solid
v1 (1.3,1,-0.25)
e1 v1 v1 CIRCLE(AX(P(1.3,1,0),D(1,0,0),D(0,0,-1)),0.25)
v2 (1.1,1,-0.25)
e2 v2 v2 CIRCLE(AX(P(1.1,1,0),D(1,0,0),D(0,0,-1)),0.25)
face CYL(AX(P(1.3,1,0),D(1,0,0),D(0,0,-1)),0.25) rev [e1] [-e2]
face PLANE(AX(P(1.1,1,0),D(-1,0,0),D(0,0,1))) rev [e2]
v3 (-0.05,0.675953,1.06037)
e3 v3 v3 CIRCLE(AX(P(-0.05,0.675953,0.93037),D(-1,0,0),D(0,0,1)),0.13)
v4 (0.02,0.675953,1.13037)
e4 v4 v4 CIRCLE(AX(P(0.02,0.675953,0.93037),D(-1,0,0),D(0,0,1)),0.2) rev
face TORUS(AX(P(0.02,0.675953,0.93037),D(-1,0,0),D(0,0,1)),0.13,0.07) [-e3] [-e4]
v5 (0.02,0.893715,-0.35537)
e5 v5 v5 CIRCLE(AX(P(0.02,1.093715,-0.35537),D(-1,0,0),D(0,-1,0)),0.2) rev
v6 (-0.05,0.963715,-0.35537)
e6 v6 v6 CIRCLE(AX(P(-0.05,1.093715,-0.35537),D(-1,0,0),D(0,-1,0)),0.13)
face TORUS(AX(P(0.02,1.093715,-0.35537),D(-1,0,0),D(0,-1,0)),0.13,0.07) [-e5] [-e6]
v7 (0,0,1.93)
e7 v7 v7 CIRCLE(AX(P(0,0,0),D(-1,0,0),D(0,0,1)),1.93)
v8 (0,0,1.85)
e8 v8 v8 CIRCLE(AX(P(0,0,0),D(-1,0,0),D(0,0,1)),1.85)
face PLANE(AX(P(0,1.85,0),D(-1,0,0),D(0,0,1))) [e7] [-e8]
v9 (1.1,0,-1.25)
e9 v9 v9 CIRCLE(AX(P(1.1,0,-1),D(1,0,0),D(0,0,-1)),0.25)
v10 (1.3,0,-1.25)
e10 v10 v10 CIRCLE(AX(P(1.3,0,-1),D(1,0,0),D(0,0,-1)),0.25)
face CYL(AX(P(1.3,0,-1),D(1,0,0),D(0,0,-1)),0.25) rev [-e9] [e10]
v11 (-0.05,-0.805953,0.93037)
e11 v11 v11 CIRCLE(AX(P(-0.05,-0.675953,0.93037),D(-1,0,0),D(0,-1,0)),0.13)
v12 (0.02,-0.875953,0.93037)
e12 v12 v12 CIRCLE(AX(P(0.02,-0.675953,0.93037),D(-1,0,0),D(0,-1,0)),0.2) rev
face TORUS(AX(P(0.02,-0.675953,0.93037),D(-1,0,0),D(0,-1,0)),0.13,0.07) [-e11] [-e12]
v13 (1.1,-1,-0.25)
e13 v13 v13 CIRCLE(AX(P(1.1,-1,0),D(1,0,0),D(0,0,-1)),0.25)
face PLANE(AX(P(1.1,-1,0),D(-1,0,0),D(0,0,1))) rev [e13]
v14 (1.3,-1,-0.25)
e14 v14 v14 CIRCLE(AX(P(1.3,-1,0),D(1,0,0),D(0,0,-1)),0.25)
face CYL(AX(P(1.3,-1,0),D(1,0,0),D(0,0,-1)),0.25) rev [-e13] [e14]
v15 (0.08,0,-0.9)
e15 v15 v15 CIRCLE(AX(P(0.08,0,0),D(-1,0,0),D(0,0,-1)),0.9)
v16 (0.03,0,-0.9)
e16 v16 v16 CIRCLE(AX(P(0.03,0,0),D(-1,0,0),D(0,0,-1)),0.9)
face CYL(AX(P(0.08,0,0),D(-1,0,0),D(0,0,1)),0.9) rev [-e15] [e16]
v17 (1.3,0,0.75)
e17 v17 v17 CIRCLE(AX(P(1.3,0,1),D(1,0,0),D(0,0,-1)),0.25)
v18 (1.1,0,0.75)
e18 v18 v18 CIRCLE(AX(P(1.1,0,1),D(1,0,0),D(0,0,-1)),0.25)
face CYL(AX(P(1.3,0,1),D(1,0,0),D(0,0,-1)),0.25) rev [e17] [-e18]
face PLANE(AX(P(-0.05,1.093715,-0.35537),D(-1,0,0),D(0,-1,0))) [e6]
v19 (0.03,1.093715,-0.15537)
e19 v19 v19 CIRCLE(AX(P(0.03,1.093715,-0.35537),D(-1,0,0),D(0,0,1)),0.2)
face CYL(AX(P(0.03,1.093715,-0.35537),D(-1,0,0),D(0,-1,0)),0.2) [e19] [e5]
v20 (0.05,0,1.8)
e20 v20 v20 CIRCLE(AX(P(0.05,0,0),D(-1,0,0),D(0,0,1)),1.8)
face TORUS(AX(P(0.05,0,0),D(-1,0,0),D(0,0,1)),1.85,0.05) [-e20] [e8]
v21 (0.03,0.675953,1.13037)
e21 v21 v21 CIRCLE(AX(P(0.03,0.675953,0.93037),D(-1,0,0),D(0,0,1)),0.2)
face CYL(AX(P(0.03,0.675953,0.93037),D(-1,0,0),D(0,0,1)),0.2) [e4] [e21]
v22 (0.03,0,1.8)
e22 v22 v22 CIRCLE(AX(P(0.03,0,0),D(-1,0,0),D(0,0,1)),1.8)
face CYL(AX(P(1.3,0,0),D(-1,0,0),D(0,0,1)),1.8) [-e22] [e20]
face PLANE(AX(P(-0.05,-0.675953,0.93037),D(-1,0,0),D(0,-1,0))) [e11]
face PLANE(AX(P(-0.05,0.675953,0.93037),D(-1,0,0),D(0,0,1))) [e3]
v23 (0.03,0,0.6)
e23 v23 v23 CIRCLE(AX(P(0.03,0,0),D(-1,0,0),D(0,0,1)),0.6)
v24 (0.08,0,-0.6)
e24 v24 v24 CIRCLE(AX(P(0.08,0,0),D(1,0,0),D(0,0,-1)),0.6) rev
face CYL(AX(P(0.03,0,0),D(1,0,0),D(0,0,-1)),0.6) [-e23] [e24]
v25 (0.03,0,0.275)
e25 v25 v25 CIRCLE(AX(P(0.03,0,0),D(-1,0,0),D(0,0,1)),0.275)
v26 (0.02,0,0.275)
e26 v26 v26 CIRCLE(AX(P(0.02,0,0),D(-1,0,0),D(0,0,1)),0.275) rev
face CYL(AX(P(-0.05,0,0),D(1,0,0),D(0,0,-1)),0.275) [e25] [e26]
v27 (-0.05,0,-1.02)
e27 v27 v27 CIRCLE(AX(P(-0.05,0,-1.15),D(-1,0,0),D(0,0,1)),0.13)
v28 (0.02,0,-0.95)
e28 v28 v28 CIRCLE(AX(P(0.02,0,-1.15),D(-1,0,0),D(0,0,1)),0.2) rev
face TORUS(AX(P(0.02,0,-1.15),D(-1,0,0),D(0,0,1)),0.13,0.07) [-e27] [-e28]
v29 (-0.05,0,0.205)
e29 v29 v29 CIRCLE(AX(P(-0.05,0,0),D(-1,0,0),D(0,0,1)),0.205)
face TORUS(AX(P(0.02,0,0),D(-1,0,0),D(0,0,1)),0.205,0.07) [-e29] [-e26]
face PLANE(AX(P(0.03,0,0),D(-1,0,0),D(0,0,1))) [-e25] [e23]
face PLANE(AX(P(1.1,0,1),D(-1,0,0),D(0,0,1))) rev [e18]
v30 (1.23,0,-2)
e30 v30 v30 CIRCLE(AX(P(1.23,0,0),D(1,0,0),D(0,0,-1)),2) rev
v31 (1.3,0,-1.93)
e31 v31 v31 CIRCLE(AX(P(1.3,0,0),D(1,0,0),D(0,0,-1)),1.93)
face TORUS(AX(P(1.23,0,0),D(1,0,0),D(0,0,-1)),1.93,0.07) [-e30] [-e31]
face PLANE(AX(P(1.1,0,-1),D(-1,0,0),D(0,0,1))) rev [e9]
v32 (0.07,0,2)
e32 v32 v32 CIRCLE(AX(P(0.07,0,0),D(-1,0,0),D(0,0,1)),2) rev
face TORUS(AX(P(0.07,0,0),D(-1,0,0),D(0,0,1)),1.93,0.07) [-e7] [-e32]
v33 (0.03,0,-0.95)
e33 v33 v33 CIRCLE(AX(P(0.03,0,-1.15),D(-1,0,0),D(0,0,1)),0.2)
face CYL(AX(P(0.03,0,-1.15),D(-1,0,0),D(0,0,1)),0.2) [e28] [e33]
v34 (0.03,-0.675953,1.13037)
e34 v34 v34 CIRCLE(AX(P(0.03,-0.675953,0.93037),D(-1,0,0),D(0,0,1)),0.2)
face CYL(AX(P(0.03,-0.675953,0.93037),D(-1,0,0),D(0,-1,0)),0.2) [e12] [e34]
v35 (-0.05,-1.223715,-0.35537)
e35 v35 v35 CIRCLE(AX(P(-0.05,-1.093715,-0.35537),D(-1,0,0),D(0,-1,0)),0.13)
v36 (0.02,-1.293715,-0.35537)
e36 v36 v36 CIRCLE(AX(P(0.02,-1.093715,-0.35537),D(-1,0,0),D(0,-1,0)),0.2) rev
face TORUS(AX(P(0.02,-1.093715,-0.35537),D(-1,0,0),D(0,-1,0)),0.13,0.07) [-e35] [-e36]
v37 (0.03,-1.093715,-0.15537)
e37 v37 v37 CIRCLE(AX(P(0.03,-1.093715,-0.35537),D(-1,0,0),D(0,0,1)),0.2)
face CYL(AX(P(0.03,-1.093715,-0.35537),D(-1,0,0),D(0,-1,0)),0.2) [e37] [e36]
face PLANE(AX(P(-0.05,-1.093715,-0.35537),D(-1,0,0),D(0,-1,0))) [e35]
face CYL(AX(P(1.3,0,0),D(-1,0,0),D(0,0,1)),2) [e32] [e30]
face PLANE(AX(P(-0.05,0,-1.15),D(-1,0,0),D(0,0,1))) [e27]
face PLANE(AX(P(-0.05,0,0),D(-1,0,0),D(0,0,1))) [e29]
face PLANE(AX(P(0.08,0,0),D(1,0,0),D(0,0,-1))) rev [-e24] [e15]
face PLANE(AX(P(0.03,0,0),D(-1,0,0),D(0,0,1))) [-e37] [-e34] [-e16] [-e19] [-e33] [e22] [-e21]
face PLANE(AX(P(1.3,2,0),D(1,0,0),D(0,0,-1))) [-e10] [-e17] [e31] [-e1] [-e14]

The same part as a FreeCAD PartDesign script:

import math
import FreeCAD as App
import Part
import Sketcher
Q = App.Units.Quantity


def edges_at(feature, points):
    """Names of the edges that pass closest to the given points."""
    edges = feature.Shape.Edges
    near = lambda p: min(range(len(edges)), key=lambda i: edges[i].distToShape(Part.Vertex(*p))[0])
    return sorted({f"Edge{near(p) + 1}" for p in points})


def add_polygon(sketch, points):
    """Adds a closed chain of lines whose ends are joined by coincident constraints."""
    first, n = sketch.GeometryCount, len(points)
    for a, b in zip(points, points[1:] + points[:1]):
        sketch.addGeometry(Part.LineSegment(App.Vector(*a, 0), App.Vector(*b, 0)), False)
    for i in range(n):
        sketch.addConstraint(Sketcher.Constraint("Coincident", first + i, 2, first + (i + 1) % n, 1))

doc = App.newDocument("Part")
body = doc.addObject("PartDesign::Body", "Body")

# Sketch on XY plane
sketch1 = body.newObject("Sketcher::SketchObject", "Sketch")
sketch1.AttachmentSupport = (doc.getObject("XY_Plane"), [""])
sketch1.MapMode = "FlatFace"
sketch1.addGeometry([
    Part.LineSegment(App.Vector(1.3, 2, 0), App.Vector(1.3, 0, 0)),  # 0
    Part.LineSegment(App.Vector(1.3, 0, 0), App.Vector(0.03, 0, 0)),  # 1
    Part.LineSegment(App.Vector(0.03, 0, 0), App.Vector(0.03, 1.8, 0)),  # 2
    Part.LineSegment(App.Vector(0.03, 1.8, 0), App.Vector(0.05, 1.8, 0)),  # 3
    Part.ArcOfCircle(Part.Circle(App.Vector(0.05, 1.85, 0), App.Vector(0, 0, 1), 0.05), math.radians(180), math.radians(270)),  # 4
    Part.LineSegment(App.Vector(0, 1.85, 0), App.Vector(0, 2, 0)),  # 5
    Part.LineSegment(App.Vector(0, 2, 0), App.Vector(1.3, 2, 0)),  # 6
], False)
sketch1.addConstraint([
    Sketcher.Constraint("Coincident", 0, 2, 1, 1),
    Sketcher.Constraint("Coincident", 1, 2, 2, 1),
    Sketcher.Constraint("Coincident", 2, 2, 3, 1),
    Sketcher.Constraint("Tangent", 3, 2, 4, 2),
    Sketcher.Constraint("Tangent", 4, 1, 5, 1),
    Sketcher.Constraint("Coincident", 5, 2, 6, 1),
    Sketcher.Constraint("Coincident", 6, 2, 0, 1),
    Sketcher.Constraint("Vertical", 0),
    Sketcher.Constraint("Horizontal", 1),
    Sketcher.Constraint("Vertical", 2),
    Sketcher.Constraint("Horizontal", 3),
    Sketcher.Constraint("Vertical", 5),
    Sketcher.Constraint("Horizontal", 6),
    Sketcher.Constraint("PointOnObject", 0, 2, -1),
    Sketcher.Constraint("PointOnObject", 4, 1, -2),
    Sketcher.Constraint("DistanceY", 0, 2, 0, 1, Q("2 mm")),
    Sketcher.Constraint("Radius", 4, Q("0.05 mm")),
    Sketcher.Constraint("DistanceX", 6, 1, 6, 2, Q("1.3 mm")),
    Sketcher.Constraint("DistanceY", 2, 1, 2, 2, Q("1.8 mm")),
    Sketcher.Constraint("DistanceX", 1, 2, 1, 1, Q("1.27 mm")),
])
revolution = body.newObject("PartDesign::Revolution", "Revolution")
revolution.Profile = sketch1
revolution.ReferenceAxis = (sketch1, ["H_Axis"])
revolution.Angle = 360

# Sketch on YZ plane
sketch2 = body.newObject("Sketcher::SketchObject", "Sketch001")
sketch2.AttachmentSupport = (doc.getObject("YZ_Plane"), [""])
sketch2.MapMode = "FlatFace"
sketch2.AttachmentOffset = App.Placement(App.Vector(0, 0, 0.03), App.Rotation())
sketch2.addGeometry(Part.Circle(App.Vector(0, 0, 0), App.Vector(0, 0, 1), 0.9), False)
sketch2.addConstraint([
    Sketcher.Constraint("Coincident", 0, 3, -1, 1),
    Sketcher.Constraint("Diameter", 0, Q("1.8 mm")),
])
pocket1 = body.newObject("PartDesign::Pocket", "Pocket")
pocket1.Profile = sketch2
pocket1.Length = 0.05
pocket1.Reversed = True

# Sketch on YZ plane
sketch3 = body.newObject("Sketcher::SketchObject", "Sketch002")
sketch3.AttachmentSupport = (doc.getObject("YZ_Plane"), [""])
sketch3.MapMode = "FlatFace"
sketch3.AttachmentOffset = App.Placement(App.Vector(0, 0, 0.08), App.Rotation())
sketch3.addGeometry(Part.Circle(App.Vector(0, 0, 0), App.Vector(0, 0, 1), 0.6), False)
sketch3.addConstraint([
    Sketcher.Constraint("Coincident", 0, 3, -1, 1),
    Sketcher.Constraint("Diameter", 0, Q("1.2 mm")),
])
pad1 = body.newObject("PartDesign::Pad", "Pad")
pad1.Profile = sketch3
pad1.Length = 0.05
pad1.Reversed = True

# Sketch on YZ plane
sketch4 = body.newObject("Sketcher::SketchObject", "Sketch003")
sketch4.AttachmentSupport = (doc.getObject("YZ_Plane"), [""])
sketch4.MapMode = "FlatFace"
sketch4.AttachmentOffset = App.Placement(App.Vector(0, 0, 0.03), App.Rotation())
sketch4.addGeometry(Part.Circle(App.Vector(0, 0, 0), App.Vector(0, 0, 1), 0.28), False)
sketch4.addConstraint([
    Sketcher.Constraint("Coincident", 0, 3, -1, 1),
    Sketcher.Constraint("Diameter", 0, Q("0.55 mm")),
])
pad2 = body.newObject("PartDesign::Pad", "Pad001")
pad2.Profile = sketch4
pad2.Length = 0.08
pad2.Reversed = True

# Sketch on XY plane
sketch5 = body.newObject("Sketcher::SketchObject", "Sketch004")
sketch5.AttachmentSupport = (doc.getObject("XY_Plane"), [""])
sketch5.MapMode = "FlatFace"
sketch5.AttachmentOffset = App.Placement(App.Vector(0, 0, -1.15), App.Rotation())
add_polygon(sketch5, [(0.03, 0.2), (0.03, 0), (-0.05, 0), (-0.05, 0.2)])  # lines 0-3
sketch5.addConstraint([
    Sketcher.Constraint("Vertical", 0),
    Sketcher.Constraint("Horizontal", 1),
    Sketcher.Constraint("Vertical", 2),
    Sketcher.Constraint("Horizontal", 3),
    Sketcher.Constraint("PointOnObject", 0, 2, -1),
    Sketcher.Constraint("DistanceY", 0, 2, 0, 1, Q("0.2 mm")),
    Sketcher.Constraint("DistanceX", 1, 2, 1, 1, Q("0.08 mm")),
    Sketcher.Constraint("DistanceX", -1, 1, 0, 2, Q("0.03 mm")),
])
revolution2 = body.newObject("PartDesign::Revolution", "Revolution001")
revolution2.Profile = sketch5
revolution2.ReferenceAxis = (sketch5, ["H_Axis"])
revolution2.Angle = 360

# Sketch on XY plane
sketch6 = body.newObject("Sketcher::SketchObject", "Sketch005")
sketch6.AttachmentSupport = (doc.getObject("XY_Plane"), [""])
sketch6.MapMode = "FlatFace"
sketch6.AttachmentOffset = App.Placement(App.Vector(0, 0, -0.35537), App.Rotation())
add_polygon(sketch6, [(0.03, 1.29), (0.03, 1.09), (-0.05, 1.09), (-0.05, 1.29)])  # lines 0-3
sketch6.addGeometry(Part.LineSegment(App.Vector(0.03, 1.09, 0), App.Vector(-0.05, 1.09, 0)), True)  # axis
sketch6.addConstraint([
    Sketcher.Constraint("Vertical", 0),
    Sketcher.Constraint("Horizontal", 1),
    Sketcher.Constraint("Vertical", 2),
    Sketcher.Constraint("Horizontal", 3),
    Sketcher.Constraint("Horizontal", 4),
    Sketcher.Constraint("Coincident", 4, 1, 0, 2),
    Sketcher.Constraint("Vertical", 2, 2, 4, 2),
    Sketcher.Constraint("DistanceY", 0, 2, 0, 1, Q("0.2 mm")),
    Sketcher.Constraint("DistanceX", 1, 2, 1, 1, Q("0.08 mm")),
    Sketcher.Constraint("DistanceX", -1, 1, 0, 2, Q("0.03 mm")),
    Sketcher.Constraint("DistanceY", -1, 1, 0, 2, Q("1.093715 mm")),
])
revolution3 = body.newObject("PartDesign::Revolution", "Revolution002")
revolution3.Profile = sketch6
revolution3.ReferenceAxis = (sketch6, ["Axis0"])
revolution3.Angle = 360

# Sketch on XY plane
sketch7 = body.newObject("Sketcher::SketchObject", "Sketch006")
sketch7.AttachmentSupport = (doc.getObject("XY_Plane"), [""])
sketch7.MapMode = "FlatFace"
sketch7.AttachmentOffset = App.Placement(App.Vector(0, 0, 0.93037), App.Rotation())
add_polygon(sketch7, [(0.03, 0.88), (0.03, 0.68), (-0.05, 0.68), (-0.05, 0.88)])  # lines 0-3
sketch7.addGeometry(Part.LineSegment(App.Vector(0.03, 0.68, 0), App.Vector(-0.05, 0.68, 0)), True)  # axis
sketch7.addConstraint([
    Sketcher.Constraint("Vertical", 0),
    Sketcher.Constraint("Horizontal", 1),
    Sketcher.Constraint("Vertical", 2),
    Sketcher.Constraint("Horizontal", 3),
    Sketcher.Constraint("Horizontal", 4),
    Sketcher.Constraint("Coincident", 4, 1, 0, 2),
    Sketcher.Constraint("Vertical", 2, 2, 4, 2),
    Sketcher.Constraint("DistanceY", 0, 2, 0, 1, Q("0.2 mm")),
    Sketcher.Constraint("DistanceX", 1, 2, 1, 1, Q("0.08 mm")),
    Sketcher.Constraint("DistanceX", -1, 1, 0, 2, Q("0.03 mm")),
    Sketcher.Constraint("DistanceY", -1, 1, 0, 2, Q("0.675953 mm")),
])
revolution4 = body.newObject("PartDesign::Revolution", "Revolution003")
revolution4.Profile = sketch7
revolution4.ReferenceAxis = (sketch7, ["Axis0"])
revolution4.Angle = 360

# Sketch on XY plane
sketch8 = body.newObject("Sketcher::SketchObject", "Sketch007")
sketch8.AttachmentSupport = (doc.getObject("XY_Plane"), [""])
sketch8.MapMode = "FlatFace"
sketch8.AttachmentOffset = App.Placement(App.Vector(0, 0, 0.93037), App.Rotation())
add_polygon(sketch8, [(0.03, -0.48), (0.03, -0.68), (-0.05, -0.68), (-0.05, -0.48)])  # lines 0-3
sketch8.addGeometry(Part.LineSegment(App.Vector(0.03, -0.68, 0), App.Vector(-0.05, -0.68, 0)), True)  # axis
sketch8.addConstraint([
    Sketcher.Constraint("Vertical", 0),
    Sketcher.Constraint("Horizontal", 1),
    Sketcher.Constraint("Vertical", 2),
    Sketcher.Constraint("Horizontal", 3),
    Sketcher.Constraint("Horizontal", 4),
    Sketcher.Constraint("Coincident", 4, 1, 0, 2),
    Sketcher.Constraint("Vertical", 2, 2, 4, 2),
    Sketcher.Constraint("DistanceY", 0, 2, 0, 1, Q("0.2 mm")),
    Sketcher.Constraint("DistanceX", 1, 2, 1, 1, Q("0.08 mm")),
    Sketcher.Constraint("DistanceX", -1, 1, 0, 2, Q("0.03 mm")),
    Sketcher.Constraint("DistanceY", 0, 2, -1, 1, Q("0.675953 mm")),
])
revolution5 = body.newObject("PartDesign::Revolution", "Revolution004")
revolution5.Profile = sketch8
revolution5.ReferenceAxis = (sketch8, ["Axis0"])
revolution5.Angle = 360

# Sketch on XY plane
sketch9 = body.newObject("Sketcher::SketchObject", "Sketch008")
sketch9.AttachmentSupport = (doc.getObject("XY_Plane"), [""])
sketch9.MapMode = "FlatFace"
sketch9.AttachmentOffset = App.Placement(App.Vector(0, 0, -0.35537), App.Rotation())
add_polygon(sketch9, [(0.03, -0.89), (0.03, -1.09), (-0.05, -1.09), (-0.05, -0.89)])  # lines 0-3
sketch9.addGeometry(Part.LineSegment(App.Vector(0.03, -1.09, 0), App.Vector(-0.05, -1.09, 0)), True)  # axis
sketch9.addConstraint([
    Sketcher.Constraint("Vertical", 0),
    Sketcher.Constraint("Horizontal", 1),
    Sketcher.Constraint("Vertical", 2),
    Sketcher.Constraint("Horizontal", 3),
    Sketcher.Constraint("Horizontal", 4),
    Sketcher.Constraint("Coincident", 4, 1, 0, 2),
    Sketcher.Constraint("Vertical", 2, 2, 4, 2),
    Sketcher.Constraint("DistanceY", 0, 2, 0, 1, Q("0.2 mm")),
    Sketcher.Constraint("DistanceX", 1, 2, 1, 1, Q("0.08 mm")),
    Sketcher.Constraint("DistanceX", -1, 1, 0, 2, Q("0.03 mm")),
    Sketcher.Constraint("DistanceY", 0, 2, -1, 1, Q("1.093715 mm")),
])
revolution6 = body.newObject("PartDesign::Revolution", "Revolution005")
revolution6.Profile = sketch9
revolution6.ReferenceAxis = (sketch9, ["Axis0"])
revolution6.Angle = 360

# Sketch on YZ plane
sketch10 = body.newObject("Sketcher::SketchObject", "Sketch009")
sketch10.AttachmentSupport = (doc.getObject("YZ_Plane"), [""])
sketch10.MapMode = "FlatFace"
sketch10.AttachmentOffset = App.Placement(App.Vector(0, 0, 1.3), App.Rotation())
sketch10.addGeometry([
    Part.Circle(App.Vector(0, 1, 0), App.Vector(0, 0, 1), 0.25),
    Part.Circle(App.Vector(-1, 0, 0), App.Vector(0, 0, 1), 0.25),
    Part.Circle(App.Vector(0, -1, 0), App.Vector(0, 0, 1), 0.25),
    Part.Circle(App.Vector(1, 0, 0), App.Vector(0, 0, 1), 0.25),
], False)
sketch10.addConstraint([
    Sketcher.Constraint("Equal", 0, 1),
    Sketcher.Constraint("Equal", 1, 2),
    Sketcher.Constraint("Equal", 2, 3),
    Sketcher.Constraint("Symmetric", 0, 3, 2, 3, -1, 1),
    Sketcher.Constraint("Symmetric", 1, 3, 3, 3, -1, 1),
    Sketcher.Constraint("PointOnObject", 0, 3, -2),
    Sketcher.Constraint("PointOnObject", 1, 3, -1),
    Sketcher.Constraint("Diameter", 0, Q("0.5 mm")),
    Sketcher.Constraint("DistanceY", -1, 1, 0, 3, Q("1 mm")),
    Sketcher.Constraint("DistanceX", 1, 3, -1, 1, Q("1 mm")),
])
doc.recompute()
hole = body.newObject("PartDesign::Hole", "Hole")
hole.Profile = sketch10
hole.ThreadType = "None"
hole.Diameter = 0.5
hole.DepthType = "Dimension"
hole.Depth = 0.2
hole.DrillPoint = "Flat"
doc.recompute()

fillet = body.newObject("PartDesign::Fillet", "Fillet")
fillet.Base = (hole, edges_at(hole, [
    (-0.05, 0, -0.275),
    (-0.05, -0.2, -1.15),
    (-0.05, 0.894, -0.355),
    (-0.05, 0.476, 0.93),
    (-0.05, -0.876, 0.93),
    (-0.05, -1.294, -0.355),
    (0, -2, 0),
    (1.3, -2, 0),
]))
fillet.Radius = 0.07

doc.recompute()
